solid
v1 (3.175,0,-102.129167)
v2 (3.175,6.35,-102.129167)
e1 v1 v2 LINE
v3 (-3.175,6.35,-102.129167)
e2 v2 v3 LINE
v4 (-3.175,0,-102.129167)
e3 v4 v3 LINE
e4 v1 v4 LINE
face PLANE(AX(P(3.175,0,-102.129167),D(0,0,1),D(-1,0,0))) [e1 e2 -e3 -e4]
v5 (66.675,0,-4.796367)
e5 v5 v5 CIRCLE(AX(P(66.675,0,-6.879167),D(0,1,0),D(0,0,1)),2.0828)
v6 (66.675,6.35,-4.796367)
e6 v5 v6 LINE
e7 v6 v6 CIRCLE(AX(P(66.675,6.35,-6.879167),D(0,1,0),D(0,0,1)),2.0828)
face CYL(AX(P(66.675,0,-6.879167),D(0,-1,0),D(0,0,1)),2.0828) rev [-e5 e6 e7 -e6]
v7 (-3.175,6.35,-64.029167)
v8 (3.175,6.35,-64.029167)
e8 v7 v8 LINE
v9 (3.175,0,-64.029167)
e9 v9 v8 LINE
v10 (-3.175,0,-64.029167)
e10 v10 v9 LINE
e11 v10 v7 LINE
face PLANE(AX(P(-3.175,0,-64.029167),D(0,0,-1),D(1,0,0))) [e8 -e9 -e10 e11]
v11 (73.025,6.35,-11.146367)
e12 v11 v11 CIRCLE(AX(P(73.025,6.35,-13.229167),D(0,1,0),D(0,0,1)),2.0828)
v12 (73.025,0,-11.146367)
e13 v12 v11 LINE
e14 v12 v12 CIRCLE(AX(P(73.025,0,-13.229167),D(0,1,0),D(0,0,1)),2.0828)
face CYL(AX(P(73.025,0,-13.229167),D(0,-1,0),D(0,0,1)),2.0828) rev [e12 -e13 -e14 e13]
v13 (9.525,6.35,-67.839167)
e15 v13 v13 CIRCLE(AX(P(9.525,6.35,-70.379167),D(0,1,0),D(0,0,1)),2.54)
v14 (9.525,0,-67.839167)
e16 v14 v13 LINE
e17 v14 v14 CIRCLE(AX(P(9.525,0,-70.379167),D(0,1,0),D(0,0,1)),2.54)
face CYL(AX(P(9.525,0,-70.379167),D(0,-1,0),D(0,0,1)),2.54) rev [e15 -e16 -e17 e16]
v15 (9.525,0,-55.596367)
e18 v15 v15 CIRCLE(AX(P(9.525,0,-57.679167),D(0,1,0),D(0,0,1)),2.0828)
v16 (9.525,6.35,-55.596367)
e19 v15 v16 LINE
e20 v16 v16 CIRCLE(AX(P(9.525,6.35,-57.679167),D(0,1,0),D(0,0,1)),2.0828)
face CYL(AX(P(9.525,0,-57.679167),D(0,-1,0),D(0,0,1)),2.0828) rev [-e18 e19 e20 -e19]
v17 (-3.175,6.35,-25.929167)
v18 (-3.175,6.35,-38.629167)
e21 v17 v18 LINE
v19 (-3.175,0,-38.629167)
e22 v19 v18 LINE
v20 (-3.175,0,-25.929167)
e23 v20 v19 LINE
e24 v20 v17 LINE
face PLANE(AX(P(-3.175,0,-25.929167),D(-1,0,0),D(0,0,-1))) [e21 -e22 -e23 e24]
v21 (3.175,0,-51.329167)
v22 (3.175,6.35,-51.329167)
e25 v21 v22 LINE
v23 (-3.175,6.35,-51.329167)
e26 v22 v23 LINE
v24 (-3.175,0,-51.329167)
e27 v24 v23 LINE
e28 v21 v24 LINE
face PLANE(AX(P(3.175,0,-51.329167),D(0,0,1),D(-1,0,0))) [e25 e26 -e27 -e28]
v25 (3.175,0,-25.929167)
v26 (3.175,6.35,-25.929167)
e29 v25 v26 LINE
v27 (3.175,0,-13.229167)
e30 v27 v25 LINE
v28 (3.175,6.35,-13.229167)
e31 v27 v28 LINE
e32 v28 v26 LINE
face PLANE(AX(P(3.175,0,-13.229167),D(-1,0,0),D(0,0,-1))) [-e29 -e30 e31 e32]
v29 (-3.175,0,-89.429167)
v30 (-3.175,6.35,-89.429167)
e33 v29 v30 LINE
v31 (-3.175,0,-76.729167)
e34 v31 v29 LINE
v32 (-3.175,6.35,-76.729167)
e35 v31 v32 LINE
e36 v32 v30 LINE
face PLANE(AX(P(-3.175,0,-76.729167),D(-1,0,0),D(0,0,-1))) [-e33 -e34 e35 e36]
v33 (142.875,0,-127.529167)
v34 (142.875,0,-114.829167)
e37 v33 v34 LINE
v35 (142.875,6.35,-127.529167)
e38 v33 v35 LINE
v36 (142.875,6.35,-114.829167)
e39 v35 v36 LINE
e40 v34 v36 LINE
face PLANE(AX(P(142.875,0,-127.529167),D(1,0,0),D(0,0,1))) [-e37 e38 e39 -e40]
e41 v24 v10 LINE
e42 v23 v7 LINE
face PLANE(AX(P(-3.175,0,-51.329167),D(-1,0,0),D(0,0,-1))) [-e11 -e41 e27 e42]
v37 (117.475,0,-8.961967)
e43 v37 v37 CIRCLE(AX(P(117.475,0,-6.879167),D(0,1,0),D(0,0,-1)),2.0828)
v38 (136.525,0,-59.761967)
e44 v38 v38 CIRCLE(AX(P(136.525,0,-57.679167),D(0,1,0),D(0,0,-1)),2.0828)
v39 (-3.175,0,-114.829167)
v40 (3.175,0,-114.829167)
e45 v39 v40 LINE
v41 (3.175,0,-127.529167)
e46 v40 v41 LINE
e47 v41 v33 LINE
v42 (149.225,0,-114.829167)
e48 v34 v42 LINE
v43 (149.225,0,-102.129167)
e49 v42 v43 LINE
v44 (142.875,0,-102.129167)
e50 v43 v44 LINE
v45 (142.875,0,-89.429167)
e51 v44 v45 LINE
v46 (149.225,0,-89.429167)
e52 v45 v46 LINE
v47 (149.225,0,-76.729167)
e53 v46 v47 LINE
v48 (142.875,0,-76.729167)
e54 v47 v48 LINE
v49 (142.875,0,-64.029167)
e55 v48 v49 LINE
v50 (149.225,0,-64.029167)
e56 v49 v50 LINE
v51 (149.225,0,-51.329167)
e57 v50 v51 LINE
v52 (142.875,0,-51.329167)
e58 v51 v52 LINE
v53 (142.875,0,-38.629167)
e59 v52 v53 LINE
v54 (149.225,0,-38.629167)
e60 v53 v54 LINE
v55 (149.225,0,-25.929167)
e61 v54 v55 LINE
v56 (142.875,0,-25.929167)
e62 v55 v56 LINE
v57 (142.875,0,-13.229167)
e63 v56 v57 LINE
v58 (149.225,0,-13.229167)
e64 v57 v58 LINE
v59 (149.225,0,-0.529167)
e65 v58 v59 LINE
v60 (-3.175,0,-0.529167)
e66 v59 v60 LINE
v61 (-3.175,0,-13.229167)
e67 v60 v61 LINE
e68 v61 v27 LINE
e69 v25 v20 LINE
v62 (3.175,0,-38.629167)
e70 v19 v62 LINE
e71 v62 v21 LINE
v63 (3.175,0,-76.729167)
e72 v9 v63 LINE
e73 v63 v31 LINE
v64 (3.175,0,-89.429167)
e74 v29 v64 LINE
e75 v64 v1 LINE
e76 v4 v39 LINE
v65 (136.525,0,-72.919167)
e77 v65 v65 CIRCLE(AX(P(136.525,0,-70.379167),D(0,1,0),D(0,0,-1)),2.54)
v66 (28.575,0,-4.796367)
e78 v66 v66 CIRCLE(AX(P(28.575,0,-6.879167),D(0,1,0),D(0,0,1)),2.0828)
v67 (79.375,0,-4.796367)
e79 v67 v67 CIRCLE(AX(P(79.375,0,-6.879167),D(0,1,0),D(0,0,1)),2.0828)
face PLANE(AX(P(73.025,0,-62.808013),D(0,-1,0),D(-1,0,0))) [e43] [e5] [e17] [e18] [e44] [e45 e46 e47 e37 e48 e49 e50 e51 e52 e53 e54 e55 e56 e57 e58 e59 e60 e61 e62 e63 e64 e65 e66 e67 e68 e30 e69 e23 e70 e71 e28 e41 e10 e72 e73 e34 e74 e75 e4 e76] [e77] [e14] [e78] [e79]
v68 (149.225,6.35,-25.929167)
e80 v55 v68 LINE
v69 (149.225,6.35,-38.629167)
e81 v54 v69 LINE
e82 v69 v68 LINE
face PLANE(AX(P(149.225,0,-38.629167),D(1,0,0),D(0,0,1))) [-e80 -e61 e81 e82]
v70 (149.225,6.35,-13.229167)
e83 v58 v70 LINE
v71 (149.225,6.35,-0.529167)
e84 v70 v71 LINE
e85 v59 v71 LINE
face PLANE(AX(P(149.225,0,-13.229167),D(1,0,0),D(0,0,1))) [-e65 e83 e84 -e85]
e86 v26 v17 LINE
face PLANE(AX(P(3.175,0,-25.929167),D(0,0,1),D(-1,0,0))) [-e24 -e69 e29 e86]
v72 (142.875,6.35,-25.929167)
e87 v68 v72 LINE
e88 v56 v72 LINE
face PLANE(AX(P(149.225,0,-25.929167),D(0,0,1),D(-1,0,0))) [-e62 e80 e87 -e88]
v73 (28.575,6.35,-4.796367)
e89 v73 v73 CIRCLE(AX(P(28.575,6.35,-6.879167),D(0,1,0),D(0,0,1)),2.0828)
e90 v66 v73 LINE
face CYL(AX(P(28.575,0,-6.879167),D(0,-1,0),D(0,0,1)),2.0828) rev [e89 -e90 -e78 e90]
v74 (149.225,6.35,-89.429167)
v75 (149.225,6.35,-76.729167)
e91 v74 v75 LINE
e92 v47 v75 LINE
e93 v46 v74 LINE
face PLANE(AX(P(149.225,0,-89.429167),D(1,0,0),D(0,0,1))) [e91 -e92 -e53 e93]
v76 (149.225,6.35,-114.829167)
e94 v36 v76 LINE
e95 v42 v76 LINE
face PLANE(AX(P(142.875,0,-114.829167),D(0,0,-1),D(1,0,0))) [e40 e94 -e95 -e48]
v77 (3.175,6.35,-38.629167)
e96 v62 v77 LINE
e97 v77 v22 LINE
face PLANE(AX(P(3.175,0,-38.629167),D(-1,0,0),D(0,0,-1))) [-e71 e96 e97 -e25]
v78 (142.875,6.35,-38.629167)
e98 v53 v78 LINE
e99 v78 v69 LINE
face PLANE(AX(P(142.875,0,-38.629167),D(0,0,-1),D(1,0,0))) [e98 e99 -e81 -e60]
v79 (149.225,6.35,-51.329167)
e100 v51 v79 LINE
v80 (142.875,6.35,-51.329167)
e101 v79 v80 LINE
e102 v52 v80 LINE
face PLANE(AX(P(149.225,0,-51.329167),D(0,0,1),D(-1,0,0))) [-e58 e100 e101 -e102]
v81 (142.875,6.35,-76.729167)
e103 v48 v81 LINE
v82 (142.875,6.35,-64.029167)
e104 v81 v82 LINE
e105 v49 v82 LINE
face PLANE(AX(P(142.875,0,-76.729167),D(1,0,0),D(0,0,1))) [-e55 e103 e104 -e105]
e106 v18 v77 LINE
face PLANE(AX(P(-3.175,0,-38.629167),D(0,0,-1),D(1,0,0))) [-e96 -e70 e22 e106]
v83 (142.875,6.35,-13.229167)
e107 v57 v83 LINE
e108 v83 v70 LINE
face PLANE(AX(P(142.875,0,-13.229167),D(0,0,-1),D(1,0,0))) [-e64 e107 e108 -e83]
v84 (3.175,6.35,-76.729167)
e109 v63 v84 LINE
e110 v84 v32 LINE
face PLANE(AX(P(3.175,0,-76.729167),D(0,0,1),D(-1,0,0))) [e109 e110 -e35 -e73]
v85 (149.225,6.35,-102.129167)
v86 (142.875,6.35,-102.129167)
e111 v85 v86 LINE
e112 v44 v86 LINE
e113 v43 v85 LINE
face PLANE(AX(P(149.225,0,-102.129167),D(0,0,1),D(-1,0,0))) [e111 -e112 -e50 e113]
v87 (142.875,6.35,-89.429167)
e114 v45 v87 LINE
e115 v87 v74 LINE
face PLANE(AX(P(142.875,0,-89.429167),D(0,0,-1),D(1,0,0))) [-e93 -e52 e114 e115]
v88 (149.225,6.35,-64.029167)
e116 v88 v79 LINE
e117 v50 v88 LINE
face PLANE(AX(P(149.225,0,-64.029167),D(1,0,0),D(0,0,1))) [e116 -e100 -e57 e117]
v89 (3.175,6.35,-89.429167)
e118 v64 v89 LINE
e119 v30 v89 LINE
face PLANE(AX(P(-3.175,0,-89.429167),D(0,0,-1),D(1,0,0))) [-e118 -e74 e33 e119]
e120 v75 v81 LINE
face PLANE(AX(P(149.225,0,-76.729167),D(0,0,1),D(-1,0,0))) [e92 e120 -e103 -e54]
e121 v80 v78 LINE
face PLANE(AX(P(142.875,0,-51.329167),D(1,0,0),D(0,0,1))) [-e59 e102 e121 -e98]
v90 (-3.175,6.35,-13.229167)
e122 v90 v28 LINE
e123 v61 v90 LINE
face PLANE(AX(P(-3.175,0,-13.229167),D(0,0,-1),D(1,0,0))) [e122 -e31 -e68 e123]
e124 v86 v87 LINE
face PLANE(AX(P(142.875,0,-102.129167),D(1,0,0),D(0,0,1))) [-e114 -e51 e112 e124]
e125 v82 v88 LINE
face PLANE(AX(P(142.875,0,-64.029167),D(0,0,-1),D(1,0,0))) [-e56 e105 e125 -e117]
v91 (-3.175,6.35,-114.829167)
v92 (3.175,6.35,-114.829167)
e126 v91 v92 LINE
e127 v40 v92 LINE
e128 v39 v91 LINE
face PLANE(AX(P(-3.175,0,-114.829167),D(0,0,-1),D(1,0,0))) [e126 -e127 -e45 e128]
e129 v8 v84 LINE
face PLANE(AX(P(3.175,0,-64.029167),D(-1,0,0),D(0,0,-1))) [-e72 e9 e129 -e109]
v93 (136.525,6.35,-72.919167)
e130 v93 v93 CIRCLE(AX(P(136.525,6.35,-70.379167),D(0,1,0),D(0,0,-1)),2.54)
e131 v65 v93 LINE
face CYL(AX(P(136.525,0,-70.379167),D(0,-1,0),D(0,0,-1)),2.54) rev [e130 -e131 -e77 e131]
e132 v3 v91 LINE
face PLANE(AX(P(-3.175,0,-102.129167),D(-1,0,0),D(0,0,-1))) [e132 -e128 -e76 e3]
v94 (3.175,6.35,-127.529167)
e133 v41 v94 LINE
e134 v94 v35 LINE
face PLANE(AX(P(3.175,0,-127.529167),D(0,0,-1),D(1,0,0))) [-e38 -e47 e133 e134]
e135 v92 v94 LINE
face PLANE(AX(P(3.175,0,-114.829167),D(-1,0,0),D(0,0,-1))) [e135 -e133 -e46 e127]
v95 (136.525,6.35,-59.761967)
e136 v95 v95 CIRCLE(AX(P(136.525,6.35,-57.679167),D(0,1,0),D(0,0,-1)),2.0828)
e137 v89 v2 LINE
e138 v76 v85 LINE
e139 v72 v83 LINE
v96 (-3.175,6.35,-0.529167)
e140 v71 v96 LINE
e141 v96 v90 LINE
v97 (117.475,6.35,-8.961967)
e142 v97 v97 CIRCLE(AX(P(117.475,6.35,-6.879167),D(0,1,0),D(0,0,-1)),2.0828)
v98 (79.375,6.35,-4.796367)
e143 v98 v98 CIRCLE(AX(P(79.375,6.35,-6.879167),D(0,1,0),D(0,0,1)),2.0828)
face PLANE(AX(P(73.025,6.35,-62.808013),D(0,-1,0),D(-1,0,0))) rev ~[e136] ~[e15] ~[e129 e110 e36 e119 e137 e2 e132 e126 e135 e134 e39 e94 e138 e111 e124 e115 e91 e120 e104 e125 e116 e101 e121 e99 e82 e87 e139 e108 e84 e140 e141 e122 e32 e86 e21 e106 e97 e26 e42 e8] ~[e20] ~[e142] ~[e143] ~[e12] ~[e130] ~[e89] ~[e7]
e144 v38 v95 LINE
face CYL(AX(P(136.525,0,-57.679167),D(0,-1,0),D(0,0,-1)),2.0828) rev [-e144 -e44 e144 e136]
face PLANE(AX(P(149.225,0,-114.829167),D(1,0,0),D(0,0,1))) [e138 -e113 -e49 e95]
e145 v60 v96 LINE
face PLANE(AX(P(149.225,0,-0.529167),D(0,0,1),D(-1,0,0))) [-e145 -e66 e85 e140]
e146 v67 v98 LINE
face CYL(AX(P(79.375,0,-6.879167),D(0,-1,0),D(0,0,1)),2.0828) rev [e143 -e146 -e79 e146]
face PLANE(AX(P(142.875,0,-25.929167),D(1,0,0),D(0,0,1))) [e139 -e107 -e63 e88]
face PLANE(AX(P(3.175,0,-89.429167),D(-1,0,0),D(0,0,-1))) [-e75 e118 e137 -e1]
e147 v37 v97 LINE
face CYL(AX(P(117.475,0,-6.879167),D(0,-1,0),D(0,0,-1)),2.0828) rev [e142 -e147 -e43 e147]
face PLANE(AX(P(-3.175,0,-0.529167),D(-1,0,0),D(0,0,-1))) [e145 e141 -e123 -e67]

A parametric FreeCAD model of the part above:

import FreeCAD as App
import Part
import Sketcher

V = App.Vector
Q = App.Units.Quantity

doc = App.newDocument("Part")
body = doc.addObject("PartDesign::Body", "Body")

# Sketch on XZ plane
sketch1 = body.newObject("Sketcher::SketchObject", "Sketch")
sketch1.AttachmentSupport = (doc.getObject("XZ_Plane"), [""])
sketch1.MapMode = "FlatFace"
sketch1.addGeometry([
    Part.LineSegment(V(3.2, -25.9, 0), V(3.2, -13.2, 0)),  # 0
    Part.LineSegment(V(3.2, -13.2, 0), V(-3.2, -13.2, 0)),  # 1
    Part.LineSegment(V(-3.2, -13.2, 0), V(-3.2, -0.5, 0)),  # 2
    Part.LineSegment(V(-3.2, -0.5, 0), V(149.2, -0.5, 0)),  # 3
    Part.LineSegment(V(149.2, -0.5, 0), V(149.2, -13.2, 0)),  # 4
    Part.LineSegment(V(149.2, -13.2, 0), V(142.9, -13.2, 0)),  # 5
    Part.LineSegment(V(142.9, -13.2, 0), V(142.9, -25.9, 0)),  # 6
    Part.LineSegment(V(142.9, -25.9, 0), V(149.2, -25.9, 0)),  # 7
    Part.LineSegment(V(149.2, -25.9, 0), V(149.2, -38.6, 0)),  # 8
    Part.LineSegment(V(149.2, -38.6, 0), V(142.9, -38.6, 0)),  # 9
    Part.LineSegment(V(142.9, -38.6, 0), V(142.9, -51.3, 0)),  # 10
    Part.LineSegment(V(142.9, -51.3, 0), V(149.2, -51.3, 0)),  # 11
    Part.LineSegment(V(149.2, -51.3, 0), V(149.2, -64, 0)),  # 12
    Part.LineSegment(V(149.2, -64, 0), V(142.9, -64, 0)),  # 13
    Part.LineSegment(V(142.9, -64, 0), V(142.9, -76.7, 0)),  # 14
    Part.LineSegment(V(142.9, -76.7, 0), V(149.2, -76.7, 0)),  # 15
    Part.LineSegment(V(149.2, -76.7, 0), V(149.2, -89.4, 0)),  # 16
    Part.LineSegment(V(149.2, -89.4, 0), V(142.9, -89.4, 0)),  # 17
    Part.LineSegment(V(142.9, -89.4, 0), V(142.9, -102.1, 0)),  # 18
    Part.LineSegment(V(142.9, -102.1, 0), V(149.2, -102.1, 0)),  # 19
    Part.LineSegment(V(149.2, -102.1, 0), V(149.2, -114.8, 0)),  # 20
    Part.LineSegment(V(149.2, -114.8, 0), V(142.9, -114.8, 0)),  # 21
    Part.LineSegment(V(142.9, -114.8, 0), V(142.9, -127.5, 0)),  # 22
    Part.LineSegment(V(142.9, -127.5, 0), V(3.2, -127.5, 0)),  # 23
    Part.LineSegment(V(3.2, -127.5, 0), V(3.2, -114.8, 0)),  # 24
    Part.LineSegment(V(3.2, -114.8, 0), V(-3.2, -114.8, 0)),  # 25
    Part.LineSegment(V(-3.2, -114.8, 0), V(-3.2, -102.1, 0)),  # 26
    Part.LineSegment(V(-3.2, -102.1, 0), V(3.2, -102.1, 0)),  # 27
    Part.LineSegment(V(3.2, -102.1, 0), V(3.2, -89.4, 0)),  # 28
    Part.LineSegment(V(3.2, -89.4, 0), V(-3.2, -89.4, 0)),  # 29
    Part.LineSegment(V(-3.2, -89.4, 0), V(-3.2, -76.7, 0)),  # 30
    Part.LineSegment(V(-3.2, -76.7, 0), V(3.2, -76.7, 0)),  # 31
    Part.LineSegment(V(3.2, -76.7, 0), V(3.2, -64, 0)),  # 32
    Part.LineSegment(V(3.2, -64, 0), V(-3.2, -64, 0)),  # 33
    Part.LineSegment(V(-3.2, -64, 0), V(-3.2, -51.3, 0)),  # 34
    Part.LineSegment(V(-3.2, -51.3, 0), V(3.2, -51.3, 0)),  # 35
    Part.LineSegment(V(3.2, -51.3, 0), V(3.2, -38.6, 0)),  # 36
    Part.LineSegment(V(3.2, -38.6, 0), V(-3.2, -38.6, 0)),  # 37
    Part.LineSegment(V(-3.2, -38.6, 0), V(-3.2, -25.9, 0)),  # 38
    Part.LineSegment(V(-3.2, -25.9, 0), V(3.2, -25.9, 0)),  # 39
    Part.Circle(V(117.5, -6.9, 0), V(0, 0, 1), 2.1),  # 40
    Part.Circle(V(79.4, -6.9, 0), V(0, 0, 1), 2.1),  # 41
    Part.Circle(V(73, -13.2, 0), V(0, 0, 1), 2.1),  # 42
    Part.Circle(V(66.7, -6.9, 0), V(0, 0, 1), 2.1),  # 43
    Part.Circle(V(28.6, -6.9, 0), V(0, 0, 1), 2.1),  # 44
    Part.Circle(V(136.5, -57.7, 0), V(0, 0, 1), 2.1),  # 45
    Part.Circle(V(136.5, -70.4, 0), V(0, 0, 1), 2.5),  # 46
    Part.Circle(V(9.5, -57.7, 0), V(0, 0, 1), 2.1),  # 47
    Part.Circle(V(9.5, -70.4, 0), V(0, 0, 1), 2.5),  # 48
], False)
sketch1.addConstraint([
    Sketcher.Constraint("Coincident", 0, 2, 1, 1),
    Sketcher.Constraint("Coincident", 1, 2, 2, 1),
    Sketcher.Constraint("Coincident", 2, 2, 3, 1),
    Sketcher.Constraint("Coincident", 3, 2, 4, 1),
    Sketcher.Constraint("Coincident", 4, 2, 5, 1),
    Sketcher.Constraint("Coincident", 5, 2, 6, 1),
    Sketcher.Constraint("Coincident", 6, 2, 7, 1),
    Sketcher.Constraint("Coincident", 7, 2, 8, 1),
    Sketcher.Constraint("Coincident", 8, 2, 9, 1),
    Sketcher.Constraint("Coincident", 9, 2, 10, 1),
    Sketcher.Constraint("Coincident", 10, 2, 11, 1),
    Sketcher.Constraint("Coincident", 11, 2, 12, 1),
    Sketcher.Constraint("Coincident", 12, 2, 13, 1),
    Sketcher.Constraint("Coincident", 13, 2, 14, 1),
    Sketcher.Constraint("Coincident", 14, 2, 15, 1),
    Sketcher.Constraint("Coincident", 15, 2, 16, 1),
    Sketcher.Constraint("Coincident", 16, 2, 17, 1),
    Sketcher.Constraint("Coincident", 17, 2, 18, 1),
    Sketcher.Constraint("Coincident", 18, 2, 19, 1),
    Sketcher.Constraint("Coincident", 19, 2, 20, 1),
    Sketcher.Constraint("Coincident", 20, 2, 21, 1),
    Sketcher.Constraint("Coincident", 21, 2, 22, 1),
    Sketcher.Constraint("Coincident", 22, 2, 23, 1),
    Sketcher.Constraint("Coincident", 23, 2, 24, 1),
    Sketcher.Constraint("Coincident", 24, 2, 25, 1),
    Sketcher.Constraint("Coincident", 25, 2, 26, 1),
    Sketcher.Constraint("Coincident", 26, 2, 27, 1),
    Sketcher.Constraint("Coincident", 27, 2, 28, 1),
    Sketcher.Constraint("Coincident", 28, 2, 29, 1),
    Sketcher.Constraint("Coincident", 29, 2, 30, 1),
    Sketcher.Constraint("Coincident", 30, 2, 31, 1),
    Sketcher.Constraint("Coincident", 31, 2, 32, 1),
    Sketcher.Constraint("Coincident", 32, 2, 33, 1),
    Sketcher.Constraint("Coincident", 33, 2, 34, 1),
    Sketcher.Constraint("Coincident", 34, 2, 35, 1),
    Sketcher.Constraint("Coincident", 35, 2, 36, 1),
    Sketcher.Constraint("Coincident", 36, 2, 37, 1),
    Sketcher.Constraint("Coincident", 37, 2, 38, 1),
    Sketcher.Constraint("Coincident", 38, 2, 39, 1),
    Sketcher.Constraint("Coincident", 39, 2, 0, 1),
    Sketcher.Constraint("Vertical", 0),
    Sketcher.Constraint("Horizontal", 1),
    Sketcher.Constraint("Vertical", 2),
    Sketcher.Constraint("Horizontal", 3),
    Sketcher.Constraint("Vertical", 4),
    Sketcher.Constraint("Horizontal", 5),
    Sketcher.Constraint("Vertical", 6),
    Sketcher.Constraint("Horizontal", 7),
    Sketcher.Constraint("Vertical", 8),
    Sketcher.Constraint("Horizontal", 9),
    Sketcher.Constraint("Vertical", 10),
    Sketcher.Constraint("Horizontal", 11),
    Sketcher.Constraint("Vertical", 12),
    Sketcher.Constraint("Horizontal", 13),
    Sketcher.Constraint("Vertical", 14),
    Sketcher.Constraint("Horizontal", 15),
    Sketcher.Constraint("Vertical", 16),
    Sketcher.Constraint("Horizontal", 17),
    Sketcher.Constraint("Vertical", 18),
    Sketcher.Constraint("Horizontal", 19),
    Sketcher.Constraint("Vertical", 20),
    Sketcher.Constraint("Horizontal", 21),
    Sketcher.Constraint("Vertical", 22),
    Sketcher.Constraint("Horizontal", 23),
    Sketcher.Constraint("Vertical", 24),
    Sketcher.Constraint("Horizontal", 25),
    Sketcher.Constraint("Vertical", 26),
    Sketcher.Constraint("Horizontal", 27),
    Sketcher.Constraint("Vertical", 28),
    Sketcher.Constraint("Horizontal", 29),
    Sketcher.Constraint("Vertical", 30),
    Sketcher.Constraint("Horizontal", 31),
    Sketcher.Constraint("Vertical", 32),
    Sketcher.Constraint("Horizontal", 33),
    Sketcher.Constraint("Vertical", 34),
    Sketcher.Constraint("Horizontal", 35),
    Sketcher.Constraint("Vertical", 36),
    Sketcher.Constraint("Horizontal", 37),
    Sketcher.Constraint("Vertical", 38),
    Sketcher.Constraint("Horizontal", 39),
    Sketcher.Constraint("Equal", 40, 41),
    Sketcher.Constraint("Equal", 41, 42),
    Sketcher.Constraint("Equal", 42, 43),
    Sketcher.Constraint("Equal", 43, 44),
    Sketcher.Constraint("Equal", 44, 45),
    Sketcher.Constraint("Equal", 45, 47),
    Sketcher.Constraint("Equal", 46, 48),
    Sketcher.Constraint("Horizontal", 40, 3, 41, 3),
    Sketcher.Constraint("Horizontal", 41, 3, 43, 3),
    Sketcher.Constraint("Horizontal", 43, 3, 44, 3),
    Sketcher.Constraint("Horizontal", 45, 3, 47, 3),
    Sketcher.Constraint("Horizontal", 46, 3, 48, 3),
    Sketcher.Constraint("Horizontal", 42, 3, 0, 2),
    Sketcher.Constraint("Horizontal", 1, 2, 4, 2),
    Sketcher.Constraint("Horizontal", 21, 2, 24, 2),
    Sketcher.Constraint("Horizontal", 19, 2, 26, 2),
    Sketcher.Constraint("Horizontal", 17, 2, 28, 2),
    Sketcher.Constraint("Horizontal", 15, 2, 30, 2),
    Sketcher.Constraint("Horizontal", 13, 2, 32, 2),
    Sketcher.Constraint("Horizontal", 11, 2, 34, 2),
    Sketcher.Constraint("Horizontal", 9, 2, 36, 2),
    Sketcher.Constraint("Horizontal", 7, 2, 38, 2),
    Sketcher.Constraint("Vertical", 45, 3, 46, 3),
    Sketcher.Constraint("Vertical", 47, 3, 48, 3),
    Sketcher.Constraint("Vertical", 4, 2, 7, 2),
    Sketcher.Constraint("Vertical", 6, 2, 9, 2),
    Sketcher.Constraint("Vertical", 8, 2, 11, 2),
    Sketcher.Constraint("Vertical", 10, 2, 13, 2),
    Sketcher.Constraint("Vertical", 12, 2, 15, 2),
    Sketcher.Constraint("Vertical", 14, 2, 17, 2),
    Sketcher.Constraint("Vertical", 16, 2, 19, 2),
    Sketcher.Constraint("Vertical", 18, 2, 21, 2),
    Sketcher.Constraint("Vertical", 0, 2, 23, 2),
    Sketcher.Constraint("Vertical", 2, 2, 25, 2),
    Sketcher.Constraint("Vertical", 24, 2, 27, 2),
    Sketcher.Constraint("Vertical", 26, 2, 29, 2),
    Sketcher.Constraint("Vertical", 28, 2, 31, 2),
    Sketcher.Constraint("Vertical", 30, 2, 33, 2),
    Sketcher.Constraint("Vertical", 32, 2, 35, 2),
    Sketcher.Constraint("Vertical", 34, 2, 37, 2),
    Sketcher.Constraint("Equal", 1, 5),
    Sketcher.Constraint("Equal", 0, 2),
    Sketcher.Constraint("Equal", 6, 8),
    Sketcher.Constraint("Equal", 8, 10),
    Sketcher.Constraint("Equal", 10, 12),
    Sketcher.Constraint("Equal", 12, 14),
    Sketcher.Constraint("Equal", 14, 16),
    Sketcher.Constraint("Equal", 16, 18),
    Sketcher.Constraint("Equal", 18, 20),
    Sketcher.Constraint("Equal", 20, 22),
    Sketcher.Constraint("Diameter", 46, Q("0.2 in")),
    Sketcher.Constraint("DistanceX", 3, 1, 3, 2, Q("6 in")),
    Sketcher.Constraint("Diameter", 40, Q("0.164 in")),
    Sketcher.Constraint("DistanceX", 23, 2, 23, 1, Q("5.5 in")),
    Sketcher.Constraint("DistanceY", 0, 1, 0, 2, Q("0.5 in")),
    Sketcher.Constraint("DistanceX", 43, 3, 40, 3, Q("2 in")),
    Sketcher.Constraint("DistanceX", 44, 3, 41, 3, Q("2 in")),
    Sketcher.Constraint("DistanceY", 45, 3, 40, 3, Q("2 in")),
    Sketcher.Constraint("DistanceX", 0, 2, 44, 3, Q("1 in")),
    Sketcher.Constraint("DistanceX", 42, 3, 3, 2, Q("3 in")),
    Sketcher.Constraint("DistanceX", 40, 3, 5, 2, Q("1 in")),
    Sketcher.Constraint("DistanceX", 42, 3, 45, 3, Q("2.5 in")),
    Sketcher.Constraint("DistanceY", 46, 3, 45, 3, Q("0.5 in")),
    Sketcher.Constraint("DistanceX", 47, 3, 42, 3, Q("2.5 in")),
    Sketcher.Constraint("DistanceY", 42, 3, 41, 3, Q("0.25 in")),
    Sketcher.Constraint("DistanceX", -1, 1, 40, 3, Q("4.625 in")),
    Sketcher.Constraint("DistanceY", 40, 3, -1, 1, Q("6.879167 mm")),
])
pad1 = body.newObject("PartDesign::Pad", "Pad")
pad1.Profile = sketch1
pad1.Length = Q("0.25 in")
pad1.Reversed = True

doc.recompute()
